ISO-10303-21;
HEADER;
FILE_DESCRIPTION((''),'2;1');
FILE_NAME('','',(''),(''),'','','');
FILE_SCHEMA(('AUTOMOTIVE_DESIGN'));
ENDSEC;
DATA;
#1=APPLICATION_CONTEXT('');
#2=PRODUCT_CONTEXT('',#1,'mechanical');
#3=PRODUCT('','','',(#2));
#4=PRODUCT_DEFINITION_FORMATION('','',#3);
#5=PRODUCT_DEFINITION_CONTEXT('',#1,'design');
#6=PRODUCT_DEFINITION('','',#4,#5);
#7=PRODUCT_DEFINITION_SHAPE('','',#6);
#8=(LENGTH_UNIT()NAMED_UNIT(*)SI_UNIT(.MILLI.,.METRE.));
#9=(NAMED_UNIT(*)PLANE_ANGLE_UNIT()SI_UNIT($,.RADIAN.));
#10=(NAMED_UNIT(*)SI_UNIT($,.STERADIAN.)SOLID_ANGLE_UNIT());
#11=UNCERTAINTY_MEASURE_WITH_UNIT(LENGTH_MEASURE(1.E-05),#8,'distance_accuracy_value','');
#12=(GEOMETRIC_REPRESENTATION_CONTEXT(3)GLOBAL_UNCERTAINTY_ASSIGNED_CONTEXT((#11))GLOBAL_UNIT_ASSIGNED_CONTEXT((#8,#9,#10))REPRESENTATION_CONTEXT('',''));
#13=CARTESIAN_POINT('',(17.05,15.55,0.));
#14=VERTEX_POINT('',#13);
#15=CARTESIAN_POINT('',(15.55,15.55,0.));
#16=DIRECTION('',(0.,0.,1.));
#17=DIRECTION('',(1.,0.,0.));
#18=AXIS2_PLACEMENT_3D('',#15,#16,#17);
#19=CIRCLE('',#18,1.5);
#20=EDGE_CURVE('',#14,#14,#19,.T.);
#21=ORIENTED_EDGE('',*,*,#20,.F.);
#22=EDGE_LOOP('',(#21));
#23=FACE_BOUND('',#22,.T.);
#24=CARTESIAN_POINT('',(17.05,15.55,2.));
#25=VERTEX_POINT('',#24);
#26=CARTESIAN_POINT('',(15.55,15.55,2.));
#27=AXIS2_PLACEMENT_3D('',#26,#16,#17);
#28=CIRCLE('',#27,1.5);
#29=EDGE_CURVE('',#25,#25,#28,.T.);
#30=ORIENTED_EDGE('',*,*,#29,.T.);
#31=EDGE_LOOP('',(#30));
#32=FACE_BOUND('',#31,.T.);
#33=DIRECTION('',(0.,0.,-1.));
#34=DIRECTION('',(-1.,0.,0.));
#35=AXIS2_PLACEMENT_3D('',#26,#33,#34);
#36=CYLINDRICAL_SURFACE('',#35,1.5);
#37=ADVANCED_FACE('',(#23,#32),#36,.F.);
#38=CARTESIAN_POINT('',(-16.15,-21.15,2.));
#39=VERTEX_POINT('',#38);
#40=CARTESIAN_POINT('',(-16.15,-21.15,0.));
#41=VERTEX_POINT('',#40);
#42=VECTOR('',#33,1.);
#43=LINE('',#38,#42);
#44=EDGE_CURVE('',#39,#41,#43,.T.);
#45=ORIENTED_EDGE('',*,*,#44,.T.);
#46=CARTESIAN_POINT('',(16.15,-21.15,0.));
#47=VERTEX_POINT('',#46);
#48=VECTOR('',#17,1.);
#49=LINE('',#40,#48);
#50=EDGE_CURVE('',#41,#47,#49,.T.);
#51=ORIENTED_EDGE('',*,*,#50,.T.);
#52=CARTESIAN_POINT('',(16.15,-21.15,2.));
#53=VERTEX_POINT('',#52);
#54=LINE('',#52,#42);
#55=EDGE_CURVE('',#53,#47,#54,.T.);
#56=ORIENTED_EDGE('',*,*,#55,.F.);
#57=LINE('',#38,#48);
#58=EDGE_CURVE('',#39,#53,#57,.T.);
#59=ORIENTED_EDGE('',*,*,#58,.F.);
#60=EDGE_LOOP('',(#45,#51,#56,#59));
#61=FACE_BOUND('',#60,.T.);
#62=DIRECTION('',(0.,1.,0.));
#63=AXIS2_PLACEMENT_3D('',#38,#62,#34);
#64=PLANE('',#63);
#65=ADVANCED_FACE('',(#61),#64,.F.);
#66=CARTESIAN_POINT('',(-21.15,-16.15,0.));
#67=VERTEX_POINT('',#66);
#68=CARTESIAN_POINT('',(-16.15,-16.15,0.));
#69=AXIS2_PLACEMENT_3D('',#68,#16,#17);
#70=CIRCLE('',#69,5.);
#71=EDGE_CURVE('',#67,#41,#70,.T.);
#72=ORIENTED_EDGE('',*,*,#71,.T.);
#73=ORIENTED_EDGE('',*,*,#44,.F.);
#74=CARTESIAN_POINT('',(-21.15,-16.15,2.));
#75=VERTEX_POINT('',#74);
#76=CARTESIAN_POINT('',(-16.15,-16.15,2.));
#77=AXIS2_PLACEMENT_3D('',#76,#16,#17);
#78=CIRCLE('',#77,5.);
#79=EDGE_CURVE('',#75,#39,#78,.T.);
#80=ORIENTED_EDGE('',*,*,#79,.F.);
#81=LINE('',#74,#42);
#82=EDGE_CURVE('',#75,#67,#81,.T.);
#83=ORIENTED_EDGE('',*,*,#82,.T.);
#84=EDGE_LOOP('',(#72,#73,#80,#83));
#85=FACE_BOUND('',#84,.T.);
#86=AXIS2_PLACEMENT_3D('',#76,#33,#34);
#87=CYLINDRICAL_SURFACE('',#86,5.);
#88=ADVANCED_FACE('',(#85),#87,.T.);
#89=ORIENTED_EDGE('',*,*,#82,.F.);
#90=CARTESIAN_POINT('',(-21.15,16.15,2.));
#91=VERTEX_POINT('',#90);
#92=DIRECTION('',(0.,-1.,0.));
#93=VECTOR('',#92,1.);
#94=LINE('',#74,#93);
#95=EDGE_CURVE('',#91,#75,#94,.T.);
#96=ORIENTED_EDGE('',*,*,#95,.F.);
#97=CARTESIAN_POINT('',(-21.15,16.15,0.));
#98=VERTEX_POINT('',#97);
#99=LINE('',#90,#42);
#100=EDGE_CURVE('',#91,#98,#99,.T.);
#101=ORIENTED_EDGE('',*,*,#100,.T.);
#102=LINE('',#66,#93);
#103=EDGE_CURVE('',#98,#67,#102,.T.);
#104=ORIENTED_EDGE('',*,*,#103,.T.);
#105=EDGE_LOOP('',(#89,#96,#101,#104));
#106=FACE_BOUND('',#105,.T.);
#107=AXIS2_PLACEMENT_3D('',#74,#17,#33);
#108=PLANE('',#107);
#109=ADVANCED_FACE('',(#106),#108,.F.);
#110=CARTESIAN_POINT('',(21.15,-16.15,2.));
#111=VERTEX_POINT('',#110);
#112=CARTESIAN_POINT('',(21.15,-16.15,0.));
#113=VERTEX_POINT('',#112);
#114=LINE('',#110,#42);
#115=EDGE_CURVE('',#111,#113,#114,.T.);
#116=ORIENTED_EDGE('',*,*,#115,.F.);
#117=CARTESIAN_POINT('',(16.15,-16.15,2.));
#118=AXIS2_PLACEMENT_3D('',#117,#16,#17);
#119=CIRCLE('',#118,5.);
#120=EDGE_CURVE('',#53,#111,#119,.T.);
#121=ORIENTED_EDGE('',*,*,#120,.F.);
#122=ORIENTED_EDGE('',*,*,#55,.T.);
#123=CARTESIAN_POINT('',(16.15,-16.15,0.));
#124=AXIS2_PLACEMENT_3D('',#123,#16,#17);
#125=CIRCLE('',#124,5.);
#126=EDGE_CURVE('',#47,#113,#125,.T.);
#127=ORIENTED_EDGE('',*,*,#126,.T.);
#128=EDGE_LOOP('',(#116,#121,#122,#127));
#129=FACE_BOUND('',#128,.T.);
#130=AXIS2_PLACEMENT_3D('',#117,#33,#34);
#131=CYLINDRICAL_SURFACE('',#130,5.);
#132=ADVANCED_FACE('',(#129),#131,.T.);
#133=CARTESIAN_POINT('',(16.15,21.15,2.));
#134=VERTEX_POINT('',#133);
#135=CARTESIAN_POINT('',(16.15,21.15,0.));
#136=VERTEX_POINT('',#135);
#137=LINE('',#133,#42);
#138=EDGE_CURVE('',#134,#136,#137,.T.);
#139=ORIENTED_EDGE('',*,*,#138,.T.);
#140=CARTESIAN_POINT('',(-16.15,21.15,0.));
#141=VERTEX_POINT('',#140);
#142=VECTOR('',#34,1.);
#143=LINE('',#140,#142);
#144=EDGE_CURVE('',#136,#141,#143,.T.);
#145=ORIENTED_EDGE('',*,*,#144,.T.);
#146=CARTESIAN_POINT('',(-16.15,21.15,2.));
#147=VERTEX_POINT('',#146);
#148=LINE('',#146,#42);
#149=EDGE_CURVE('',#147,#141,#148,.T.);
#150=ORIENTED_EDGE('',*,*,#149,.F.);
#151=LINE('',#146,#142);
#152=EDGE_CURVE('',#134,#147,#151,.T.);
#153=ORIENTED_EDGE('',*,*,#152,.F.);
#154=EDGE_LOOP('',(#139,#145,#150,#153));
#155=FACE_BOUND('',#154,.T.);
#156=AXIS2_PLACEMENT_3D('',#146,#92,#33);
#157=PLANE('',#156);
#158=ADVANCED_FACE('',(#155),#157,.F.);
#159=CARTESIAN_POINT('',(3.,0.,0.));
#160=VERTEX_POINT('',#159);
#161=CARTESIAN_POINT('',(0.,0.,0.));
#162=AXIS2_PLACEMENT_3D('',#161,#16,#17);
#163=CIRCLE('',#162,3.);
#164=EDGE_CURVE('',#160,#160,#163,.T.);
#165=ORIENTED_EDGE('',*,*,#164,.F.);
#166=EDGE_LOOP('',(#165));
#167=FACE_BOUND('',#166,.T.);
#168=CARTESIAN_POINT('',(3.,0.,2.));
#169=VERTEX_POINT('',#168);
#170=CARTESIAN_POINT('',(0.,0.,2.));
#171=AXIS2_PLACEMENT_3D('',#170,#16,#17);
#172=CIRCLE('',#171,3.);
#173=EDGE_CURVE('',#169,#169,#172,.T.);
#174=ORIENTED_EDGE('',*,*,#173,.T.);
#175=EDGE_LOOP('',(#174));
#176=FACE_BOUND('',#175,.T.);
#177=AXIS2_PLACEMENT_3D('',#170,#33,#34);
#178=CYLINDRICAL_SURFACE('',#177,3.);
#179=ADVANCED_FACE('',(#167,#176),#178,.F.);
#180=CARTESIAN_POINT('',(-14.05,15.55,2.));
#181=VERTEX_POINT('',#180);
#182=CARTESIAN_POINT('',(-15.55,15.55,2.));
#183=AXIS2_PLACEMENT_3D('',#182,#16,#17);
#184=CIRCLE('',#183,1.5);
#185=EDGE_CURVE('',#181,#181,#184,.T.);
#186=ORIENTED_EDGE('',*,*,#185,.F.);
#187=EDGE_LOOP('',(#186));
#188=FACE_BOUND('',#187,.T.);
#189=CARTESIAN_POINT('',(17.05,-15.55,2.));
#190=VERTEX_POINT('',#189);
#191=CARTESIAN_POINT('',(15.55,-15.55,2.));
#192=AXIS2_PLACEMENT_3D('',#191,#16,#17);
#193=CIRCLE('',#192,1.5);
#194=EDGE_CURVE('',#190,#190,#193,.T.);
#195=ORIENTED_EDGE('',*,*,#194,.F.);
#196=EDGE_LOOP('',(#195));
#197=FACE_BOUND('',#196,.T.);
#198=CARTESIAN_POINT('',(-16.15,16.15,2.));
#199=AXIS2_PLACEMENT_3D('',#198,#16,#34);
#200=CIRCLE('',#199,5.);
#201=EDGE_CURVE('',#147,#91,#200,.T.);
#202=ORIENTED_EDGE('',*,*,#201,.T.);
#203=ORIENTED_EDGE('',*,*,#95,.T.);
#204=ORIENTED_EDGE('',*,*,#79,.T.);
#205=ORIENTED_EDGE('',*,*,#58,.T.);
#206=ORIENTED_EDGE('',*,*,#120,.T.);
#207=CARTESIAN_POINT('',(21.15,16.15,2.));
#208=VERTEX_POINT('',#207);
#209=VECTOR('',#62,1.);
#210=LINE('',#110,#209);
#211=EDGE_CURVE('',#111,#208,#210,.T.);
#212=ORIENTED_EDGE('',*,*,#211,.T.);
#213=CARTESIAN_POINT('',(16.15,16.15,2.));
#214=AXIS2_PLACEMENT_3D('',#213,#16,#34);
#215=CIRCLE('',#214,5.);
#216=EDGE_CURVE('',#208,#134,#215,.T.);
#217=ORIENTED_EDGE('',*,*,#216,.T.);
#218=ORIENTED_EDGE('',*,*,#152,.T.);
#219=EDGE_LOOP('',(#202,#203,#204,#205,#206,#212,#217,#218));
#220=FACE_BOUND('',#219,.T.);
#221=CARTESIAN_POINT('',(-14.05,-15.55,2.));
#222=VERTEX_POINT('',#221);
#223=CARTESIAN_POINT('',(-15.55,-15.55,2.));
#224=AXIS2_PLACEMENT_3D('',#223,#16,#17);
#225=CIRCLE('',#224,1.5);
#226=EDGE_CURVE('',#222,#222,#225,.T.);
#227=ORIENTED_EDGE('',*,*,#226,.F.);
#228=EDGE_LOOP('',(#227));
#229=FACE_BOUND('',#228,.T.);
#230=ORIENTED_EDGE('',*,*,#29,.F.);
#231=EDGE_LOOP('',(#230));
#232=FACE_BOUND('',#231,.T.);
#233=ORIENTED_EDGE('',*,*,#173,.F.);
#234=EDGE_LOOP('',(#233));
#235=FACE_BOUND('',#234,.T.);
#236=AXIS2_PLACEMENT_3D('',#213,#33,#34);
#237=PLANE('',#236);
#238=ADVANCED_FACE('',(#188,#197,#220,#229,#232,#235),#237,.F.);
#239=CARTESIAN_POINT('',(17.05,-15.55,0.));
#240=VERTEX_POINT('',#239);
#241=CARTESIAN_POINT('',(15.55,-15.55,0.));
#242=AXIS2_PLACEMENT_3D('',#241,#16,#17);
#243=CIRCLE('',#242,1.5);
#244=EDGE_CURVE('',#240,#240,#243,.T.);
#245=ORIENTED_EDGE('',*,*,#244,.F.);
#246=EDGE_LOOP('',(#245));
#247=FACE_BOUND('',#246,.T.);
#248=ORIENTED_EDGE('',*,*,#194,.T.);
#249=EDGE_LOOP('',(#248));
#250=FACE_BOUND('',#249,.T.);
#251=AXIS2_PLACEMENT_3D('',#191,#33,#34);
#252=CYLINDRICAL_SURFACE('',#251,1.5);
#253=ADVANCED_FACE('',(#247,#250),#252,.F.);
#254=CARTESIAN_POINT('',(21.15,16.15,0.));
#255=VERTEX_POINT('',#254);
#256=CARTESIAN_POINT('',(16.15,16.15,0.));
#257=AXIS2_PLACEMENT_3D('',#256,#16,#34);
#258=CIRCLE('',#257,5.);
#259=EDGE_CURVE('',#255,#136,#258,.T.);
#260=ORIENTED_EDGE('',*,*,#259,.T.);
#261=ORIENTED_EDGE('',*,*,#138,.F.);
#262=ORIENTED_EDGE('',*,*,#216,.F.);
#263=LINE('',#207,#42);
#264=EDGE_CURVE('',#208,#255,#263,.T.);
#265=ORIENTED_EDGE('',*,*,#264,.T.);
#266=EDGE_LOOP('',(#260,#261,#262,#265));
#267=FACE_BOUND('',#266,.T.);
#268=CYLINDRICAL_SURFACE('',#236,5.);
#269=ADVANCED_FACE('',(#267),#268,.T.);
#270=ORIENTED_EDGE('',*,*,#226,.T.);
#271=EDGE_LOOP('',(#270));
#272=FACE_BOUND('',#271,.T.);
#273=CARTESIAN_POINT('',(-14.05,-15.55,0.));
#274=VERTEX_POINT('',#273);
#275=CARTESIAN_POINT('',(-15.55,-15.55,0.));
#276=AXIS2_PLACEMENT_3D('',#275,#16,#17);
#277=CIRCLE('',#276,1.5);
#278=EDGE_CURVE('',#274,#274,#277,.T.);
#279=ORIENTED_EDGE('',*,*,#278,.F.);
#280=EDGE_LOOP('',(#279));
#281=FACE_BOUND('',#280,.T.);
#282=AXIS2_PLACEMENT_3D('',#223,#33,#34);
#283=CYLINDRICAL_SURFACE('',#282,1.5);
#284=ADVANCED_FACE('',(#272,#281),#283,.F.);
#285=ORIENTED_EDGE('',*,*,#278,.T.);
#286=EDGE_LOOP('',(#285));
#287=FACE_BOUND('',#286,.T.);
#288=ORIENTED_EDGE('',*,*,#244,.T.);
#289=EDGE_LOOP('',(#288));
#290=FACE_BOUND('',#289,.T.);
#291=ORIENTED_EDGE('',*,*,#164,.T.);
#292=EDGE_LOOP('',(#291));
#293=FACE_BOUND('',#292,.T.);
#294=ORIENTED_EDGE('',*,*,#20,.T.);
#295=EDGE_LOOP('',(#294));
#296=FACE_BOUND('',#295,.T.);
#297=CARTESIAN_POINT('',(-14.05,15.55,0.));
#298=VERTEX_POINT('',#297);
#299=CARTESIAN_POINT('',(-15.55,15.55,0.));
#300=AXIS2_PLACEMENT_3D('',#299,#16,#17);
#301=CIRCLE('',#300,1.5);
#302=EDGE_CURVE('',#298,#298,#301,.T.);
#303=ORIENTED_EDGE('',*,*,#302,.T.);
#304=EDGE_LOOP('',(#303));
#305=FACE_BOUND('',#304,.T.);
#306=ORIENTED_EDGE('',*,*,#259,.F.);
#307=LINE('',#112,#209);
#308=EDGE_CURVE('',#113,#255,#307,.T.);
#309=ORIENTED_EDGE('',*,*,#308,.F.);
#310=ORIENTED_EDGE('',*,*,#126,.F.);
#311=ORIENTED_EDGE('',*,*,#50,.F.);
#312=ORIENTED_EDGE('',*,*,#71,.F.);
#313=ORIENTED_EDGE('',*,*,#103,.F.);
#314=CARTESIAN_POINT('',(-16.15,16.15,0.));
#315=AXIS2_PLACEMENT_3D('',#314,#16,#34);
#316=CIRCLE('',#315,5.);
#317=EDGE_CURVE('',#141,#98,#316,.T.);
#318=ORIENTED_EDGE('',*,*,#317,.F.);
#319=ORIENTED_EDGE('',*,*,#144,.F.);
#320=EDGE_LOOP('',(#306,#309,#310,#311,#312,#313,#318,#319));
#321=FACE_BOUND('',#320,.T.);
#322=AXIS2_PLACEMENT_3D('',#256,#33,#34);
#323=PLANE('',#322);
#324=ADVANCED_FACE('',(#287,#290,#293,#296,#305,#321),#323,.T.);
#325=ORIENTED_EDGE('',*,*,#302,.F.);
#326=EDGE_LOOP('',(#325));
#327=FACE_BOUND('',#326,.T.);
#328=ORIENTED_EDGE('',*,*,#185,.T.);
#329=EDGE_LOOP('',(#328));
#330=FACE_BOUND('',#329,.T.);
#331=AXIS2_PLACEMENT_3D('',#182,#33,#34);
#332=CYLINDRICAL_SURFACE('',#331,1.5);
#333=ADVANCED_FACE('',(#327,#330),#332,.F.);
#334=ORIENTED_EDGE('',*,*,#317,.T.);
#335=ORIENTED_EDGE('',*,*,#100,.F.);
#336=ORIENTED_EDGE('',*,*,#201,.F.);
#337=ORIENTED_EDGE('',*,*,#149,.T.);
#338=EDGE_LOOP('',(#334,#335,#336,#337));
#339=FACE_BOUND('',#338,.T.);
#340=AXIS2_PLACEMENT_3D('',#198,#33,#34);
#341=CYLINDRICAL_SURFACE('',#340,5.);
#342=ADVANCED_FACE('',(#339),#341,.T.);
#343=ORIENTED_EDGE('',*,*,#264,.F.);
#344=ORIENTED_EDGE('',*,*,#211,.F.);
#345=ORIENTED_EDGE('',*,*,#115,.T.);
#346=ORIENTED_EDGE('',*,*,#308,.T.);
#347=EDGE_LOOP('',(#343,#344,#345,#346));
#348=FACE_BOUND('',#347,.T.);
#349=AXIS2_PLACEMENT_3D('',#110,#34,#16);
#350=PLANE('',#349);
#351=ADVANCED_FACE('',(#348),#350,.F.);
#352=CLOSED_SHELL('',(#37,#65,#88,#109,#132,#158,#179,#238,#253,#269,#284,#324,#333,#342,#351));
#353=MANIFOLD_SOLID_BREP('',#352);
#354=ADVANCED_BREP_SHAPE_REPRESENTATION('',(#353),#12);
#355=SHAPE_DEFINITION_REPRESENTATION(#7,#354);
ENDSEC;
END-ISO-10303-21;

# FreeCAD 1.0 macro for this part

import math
import FreeCAD as App
import Part
import Sketcher

V = App.Vector

doc = App.newDocument("Part")
params = doc.addObject("Spreadsheet::Sheet", "Params")
for row, (alias, value) in enumerate([
    ("sketch1_diameter", "3 mm"),
    ("sketch1_diameter2", "6 mm"),
    ("sketch1_radius", "5 mm"),
    ("sketch1_width", "32.3 mm"),
    ("pad1_length", "2 mm"),
], start=1):
    params.set(f"A{row}", alias)
    params.set(f"B{row}", "=" + value)
    params.setAlias(f"B{row}", alias)

body = doc.addObject("PartDesign::Body", "Body")

# Sketch on XY plane
sketch1 = body.newObject("Sketcher::SketchObject", "Sketch")
sketch1.AttachmentSupport = (doc.getObject("XY_Plane"), [""])
sketch1.MapMode = "FlatFace"
sketch1.addGeometry(Part.LineSegment(V(-16.1, -21.1, 0), V(16.1, -21.1, 0)), False)
sketch1.addGeometry(Part.ArcOfCircle(Part.Circle(V(16.1, -16.1, 0), V(0, 0, 1), 5), math.radians(-90), math.radians(0)), False)
sketch1.addGeometry(Part.LineSegment(V(21.1, -16.1, 0), V(21.1, 16.1, 0)), False)
sketch1.addGeometry(Part.ArcOfCircle(Part.Circle(V(16.1, 16.1, 0), V(0, 0, 1), 5), math.radians(0), math.radians(90)), False)
sketch1.addGeometry(Part.LineSegment(V(16.1, 21.1, 0), V(-16.1, 21.1, 0)), False)
sketch1.addGeometry(Part.ArcOfCircle(Part.Circle(V(-16.1, 16.1, 0), V(0, 0, 1), 5), math.radians(90), math.radians(180)), False)
sketch1.addGeometry(Part.LineSegment(V(-21.1, 16.1, 0), V(-21.1, -16.1, 0)), False)
sketch1.addGeometry(Part.ArcOfCircle(Part.Circle(V(-16.1, -16.1, 0), V(0, 0, 1), 5), math.radians(180), math.radians(270)), False)
sketch1.addGeometry(Part.Circle(V(-15.6, -15.6, 0), V(0, 0, 1), 1.5), False)
sketch1.addGeometry(Part.Circle(V(15.6, -15.6, 0), V(0, 0, 1), 1.5), False)
sketch1.addGeometry(Part.Circle(V(-15.6, 15.6, 0), V(0, 0, 1), 1.5), False)
sketch1.addGeometry(Part.Circle(V(0, 0, 0), V(0, 0, 1), 3), False)
sketch1.addGeometry(Part.Circle(V(15.6, 15.6, 0), V(0, 0, 1), 1.5), False)
sketch1.addConstraint(Sketcher.Constraint("Tangent", 0, 2, 1, 1))
sketch1.addConstraint(Sketcher.Constraint("Tangent", 1, 2, 2, 1))
sketch1.addConstraint(Sketcher.Constraint("Tangent", 2, 2, 3, 1))
sketch1.addConstraint(Sketcher.Constraint("Tangent", 3, 2, 4, 1))
sketch1.addConstraint(Sketcher.Constraint("Tangent", 4, 2, 5, 1))
sketch1.addConstraint(Sketcher.Constraint("Tangent", 5, 2, 6, 1))
sketch1.addConstraint(Sketcher.Constraint("Tangent", 6, 2, 7, 1))
sketch1.addConstraint(Sketcher.Constraint("Tangent", 7, 2, 0, 1))
sketch1.addConstraint(Sketcher.Constraint("Horizontal", 0))
sketch1.addConstraint(Sketcher.Constraint("Vertical", 2))
sketch1.addConstraint(Sketcher.Constraint("Horizontal", 4))
sketch1.addConstraint(Sketcher.Constraint("Vertical", 6))
sketch1.addConstraint(Sketcher.Constraint("Coincident", 11, 3, -1, 1))
sketch1.addConstraint(Sketcher.Constraint("Equal", 1, 3))
sketch1.addConstraint(Sketcher.Constraint("Equal", 3, 5))
sketch1.addConstraint(Sketcher.Constraint("Equal", 5, 7))
sketch1.addConstraint(Sketcher.Constraint("Equal", 8, 9))
sketch1.addConstraint(Sketcher.Constraint("Equal", 9, 10))
sketch1.addConstraint(Sketcher.Constraint("Equal", 10, 12))
sketch1.addConstraint(Sketcher.Constraint("Symmetric", 1, 3, 5, 3, -1, 1))
sketch1.addConstraint(Sketcher.Constraint("Symmetric", 9, 3, 10, 3, -1, 1))
sketch1.addConstraint(Sketcher.Constraint("Symmetric", 8, 3, 12, 3, -1, 1))
sketch1.addConstraint(Sketcher.Constraint("Symmetric", 8, 3, 9, 3, -2))
sketch1.addConstraint(Sketcher.Constraint("Equal", 4, 2))
sketch1.addConstraint(Sketcher.Constraint("Diameter", 8, 3.0))
sketch1.addConstraint(Sketcher.Constraint("Diameter", 11, 6.0))
sketch1.addConstraint(Sketcher.Constraint("Radius", 1, 5.0))
sketch1.addConstraint(Sketcher.Constraint("DistanceX", 0, 1, 0, 2, 32.3))
sketch1.addConstraint(Sketcher.Constraint("DistanceX", 7, 3, 8, 3, 0.6))
sketch1.addConstraint(Sketcher.Constraint("DistanceY", 7, 3, 8, 3, 0.6))
sketch1.setExpression("Constraints[24]", "Params.sketch1_diameter")
sketch1.setExpression("Constraints[25]", "Params.sketch1_diameter2")
sketch1.setExpression("Constraints[26]", "Params.sketch1_radius")
sketch1.setExpression("Constraints[27]", "Params.sketch1_width")
pad1 = body.newObject("PartDesign::Pad", "Pad")
pad1.Profile = sketch1
pad1.setExpression("Length", "Params.pad1_length")

doc.recompute()
